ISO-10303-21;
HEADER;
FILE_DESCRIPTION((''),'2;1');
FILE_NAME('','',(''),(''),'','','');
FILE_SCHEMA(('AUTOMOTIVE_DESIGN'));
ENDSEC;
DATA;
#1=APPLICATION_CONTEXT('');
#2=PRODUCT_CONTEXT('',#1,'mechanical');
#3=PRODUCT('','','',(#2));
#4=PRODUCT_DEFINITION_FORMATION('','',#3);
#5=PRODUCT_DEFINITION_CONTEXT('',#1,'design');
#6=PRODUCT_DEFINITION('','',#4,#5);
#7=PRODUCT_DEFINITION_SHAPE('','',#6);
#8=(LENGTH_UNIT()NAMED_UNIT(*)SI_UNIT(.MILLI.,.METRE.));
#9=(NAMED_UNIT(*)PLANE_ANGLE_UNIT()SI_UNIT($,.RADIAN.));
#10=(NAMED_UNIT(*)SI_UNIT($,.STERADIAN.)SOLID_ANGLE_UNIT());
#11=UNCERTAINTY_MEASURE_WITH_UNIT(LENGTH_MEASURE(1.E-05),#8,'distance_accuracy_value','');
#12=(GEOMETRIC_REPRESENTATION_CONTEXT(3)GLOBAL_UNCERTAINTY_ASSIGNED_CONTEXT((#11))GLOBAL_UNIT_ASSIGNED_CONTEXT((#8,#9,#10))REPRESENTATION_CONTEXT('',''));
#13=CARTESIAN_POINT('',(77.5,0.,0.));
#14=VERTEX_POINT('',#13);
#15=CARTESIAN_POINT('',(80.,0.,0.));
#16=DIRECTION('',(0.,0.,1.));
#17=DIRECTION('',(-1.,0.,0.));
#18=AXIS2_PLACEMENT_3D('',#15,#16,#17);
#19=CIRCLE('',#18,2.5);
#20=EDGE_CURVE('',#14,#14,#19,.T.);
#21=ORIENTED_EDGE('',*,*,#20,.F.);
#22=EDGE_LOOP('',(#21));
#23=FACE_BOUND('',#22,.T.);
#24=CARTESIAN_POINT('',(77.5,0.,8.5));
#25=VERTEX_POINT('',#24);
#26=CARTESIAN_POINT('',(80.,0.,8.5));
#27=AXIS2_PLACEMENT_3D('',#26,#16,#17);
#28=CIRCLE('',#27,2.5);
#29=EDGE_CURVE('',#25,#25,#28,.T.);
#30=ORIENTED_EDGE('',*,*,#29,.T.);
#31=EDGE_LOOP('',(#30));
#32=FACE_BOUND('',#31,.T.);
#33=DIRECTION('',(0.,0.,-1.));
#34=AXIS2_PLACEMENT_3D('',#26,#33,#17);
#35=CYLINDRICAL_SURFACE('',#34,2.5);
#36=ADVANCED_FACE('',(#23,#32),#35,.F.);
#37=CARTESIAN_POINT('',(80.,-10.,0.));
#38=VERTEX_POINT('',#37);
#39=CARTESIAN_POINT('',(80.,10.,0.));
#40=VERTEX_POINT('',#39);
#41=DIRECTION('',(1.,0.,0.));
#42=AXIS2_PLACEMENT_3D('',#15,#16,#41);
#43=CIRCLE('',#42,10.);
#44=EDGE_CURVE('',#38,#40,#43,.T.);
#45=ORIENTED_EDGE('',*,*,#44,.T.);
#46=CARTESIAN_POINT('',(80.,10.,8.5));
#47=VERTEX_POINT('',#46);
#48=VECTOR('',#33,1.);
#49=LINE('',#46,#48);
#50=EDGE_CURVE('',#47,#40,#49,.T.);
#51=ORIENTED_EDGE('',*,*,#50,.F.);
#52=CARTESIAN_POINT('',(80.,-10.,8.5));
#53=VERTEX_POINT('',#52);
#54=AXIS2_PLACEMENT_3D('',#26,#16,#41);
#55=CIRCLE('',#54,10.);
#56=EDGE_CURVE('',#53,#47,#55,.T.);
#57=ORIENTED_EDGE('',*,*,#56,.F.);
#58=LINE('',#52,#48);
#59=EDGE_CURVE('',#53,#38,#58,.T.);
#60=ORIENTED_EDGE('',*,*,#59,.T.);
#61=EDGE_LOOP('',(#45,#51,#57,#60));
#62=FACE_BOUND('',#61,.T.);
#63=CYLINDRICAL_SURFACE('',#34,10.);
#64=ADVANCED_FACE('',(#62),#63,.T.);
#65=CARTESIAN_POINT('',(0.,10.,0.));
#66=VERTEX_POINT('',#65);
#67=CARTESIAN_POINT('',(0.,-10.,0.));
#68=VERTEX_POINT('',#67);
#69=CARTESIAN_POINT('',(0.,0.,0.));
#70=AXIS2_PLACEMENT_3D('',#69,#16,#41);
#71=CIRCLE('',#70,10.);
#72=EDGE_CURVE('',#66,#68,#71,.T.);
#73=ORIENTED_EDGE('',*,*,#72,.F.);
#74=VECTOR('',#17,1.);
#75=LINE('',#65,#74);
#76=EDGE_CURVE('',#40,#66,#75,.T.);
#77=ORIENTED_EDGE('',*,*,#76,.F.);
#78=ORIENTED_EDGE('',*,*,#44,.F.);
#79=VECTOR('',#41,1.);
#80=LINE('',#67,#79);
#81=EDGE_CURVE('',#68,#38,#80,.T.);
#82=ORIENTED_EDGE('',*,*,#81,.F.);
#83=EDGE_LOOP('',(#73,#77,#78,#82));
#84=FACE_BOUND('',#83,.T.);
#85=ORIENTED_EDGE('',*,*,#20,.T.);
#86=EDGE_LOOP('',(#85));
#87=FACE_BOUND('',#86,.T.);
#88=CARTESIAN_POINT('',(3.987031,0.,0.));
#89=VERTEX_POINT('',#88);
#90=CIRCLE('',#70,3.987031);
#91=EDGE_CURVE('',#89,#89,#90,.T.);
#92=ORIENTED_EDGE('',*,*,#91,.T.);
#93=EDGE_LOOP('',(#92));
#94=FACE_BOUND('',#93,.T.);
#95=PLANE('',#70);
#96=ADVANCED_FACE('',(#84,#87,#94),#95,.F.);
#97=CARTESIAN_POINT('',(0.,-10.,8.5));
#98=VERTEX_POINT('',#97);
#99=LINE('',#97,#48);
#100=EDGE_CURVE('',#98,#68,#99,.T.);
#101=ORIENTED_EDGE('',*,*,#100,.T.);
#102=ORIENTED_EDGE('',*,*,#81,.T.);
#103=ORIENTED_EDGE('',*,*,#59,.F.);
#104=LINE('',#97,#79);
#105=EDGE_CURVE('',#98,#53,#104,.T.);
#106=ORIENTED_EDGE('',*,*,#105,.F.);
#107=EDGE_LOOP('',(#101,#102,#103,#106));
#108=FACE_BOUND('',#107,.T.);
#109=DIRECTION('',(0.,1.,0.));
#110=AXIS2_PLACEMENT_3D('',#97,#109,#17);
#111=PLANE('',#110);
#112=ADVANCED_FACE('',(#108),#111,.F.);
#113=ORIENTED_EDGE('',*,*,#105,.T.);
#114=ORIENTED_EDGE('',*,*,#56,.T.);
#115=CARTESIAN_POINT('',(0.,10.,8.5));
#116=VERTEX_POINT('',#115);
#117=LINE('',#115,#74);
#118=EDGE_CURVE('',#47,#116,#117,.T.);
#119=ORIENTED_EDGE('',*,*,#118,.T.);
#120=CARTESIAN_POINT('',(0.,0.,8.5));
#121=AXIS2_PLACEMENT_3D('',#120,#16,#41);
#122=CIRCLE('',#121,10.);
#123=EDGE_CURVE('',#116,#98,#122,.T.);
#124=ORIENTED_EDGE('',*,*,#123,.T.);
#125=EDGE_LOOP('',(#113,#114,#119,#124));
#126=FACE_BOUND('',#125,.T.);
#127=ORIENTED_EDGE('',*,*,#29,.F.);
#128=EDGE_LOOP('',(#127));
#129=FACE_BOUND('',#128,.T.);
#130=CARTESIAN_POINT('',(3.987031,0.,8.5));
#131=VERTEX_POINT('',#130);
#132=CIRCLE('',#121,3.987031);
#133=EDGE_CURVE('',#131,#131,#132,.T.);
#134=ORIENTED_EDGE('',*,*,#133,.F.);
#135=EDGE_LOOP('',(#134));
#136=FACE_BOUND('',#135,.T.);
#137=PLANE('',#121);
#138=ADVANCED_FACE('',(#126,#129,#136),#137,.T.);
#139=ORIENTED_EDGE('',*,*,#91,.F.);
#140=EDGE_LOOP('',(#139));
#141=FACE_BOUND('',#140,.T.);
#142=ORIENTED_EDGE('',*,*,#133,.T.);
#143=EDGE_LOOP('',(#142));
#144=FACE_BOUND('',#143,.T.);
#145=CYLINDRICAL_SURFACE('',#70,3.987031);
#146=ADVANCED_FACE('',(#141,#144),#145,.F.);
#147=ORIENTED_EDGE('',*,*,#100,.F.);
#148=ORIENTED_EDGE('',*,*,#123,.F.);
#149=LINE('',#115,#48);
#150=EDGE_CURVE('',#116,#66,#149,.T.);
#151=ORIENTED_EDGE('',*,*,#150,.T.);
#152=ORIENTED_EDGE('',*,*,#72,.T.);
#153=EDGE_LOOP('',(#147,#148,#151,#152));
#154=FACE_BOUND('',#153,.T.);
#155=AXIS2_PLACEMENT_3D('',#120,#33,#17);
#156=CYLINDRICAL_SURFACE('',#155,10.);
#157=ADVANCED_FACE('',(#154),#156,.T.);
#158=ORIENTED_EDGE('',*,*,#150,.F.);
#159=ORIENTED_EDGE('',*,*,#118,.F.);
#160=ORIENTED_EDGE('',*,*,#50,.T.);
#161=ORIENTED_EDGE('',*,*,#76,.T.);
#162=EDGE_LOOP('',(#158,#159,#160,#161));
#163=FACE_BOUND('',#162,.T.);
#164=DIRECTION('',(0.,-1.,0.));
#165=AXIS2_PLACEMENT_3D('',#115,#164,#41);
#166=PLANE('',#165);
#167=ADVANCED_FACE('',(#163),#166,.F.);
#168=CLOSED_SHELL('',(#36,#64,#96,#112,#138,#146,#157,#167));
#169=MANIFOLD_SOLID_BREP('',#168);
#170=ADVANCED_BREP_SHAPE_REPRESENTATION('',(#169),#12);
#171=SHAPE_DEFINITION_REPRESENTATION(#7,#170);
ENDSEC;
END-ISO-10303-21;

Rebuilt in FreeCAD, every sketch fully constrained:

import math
import FreeCAD as App
import Part
import Sketcher
from FreeCAD import Vector

doc = App.newDocument("Part")
body = doc.addObject("PartDesign::Body", "Body")

sketch1 = doc.addObject("Sketcher::SketchObject", "Sketch")
body.addObject(sketch1)
sketch1.AttachmentSupport = (doc.XY_Plane, [""])
sketch1.MapMode = "FlatFace"
sketch1.addGeometry([
    Part.LineSegment(Vector(80, 10, 0), Vector(0, 10, 0)),
    Part.ArcOfCircle(Part.Circle(Vector(0, 0, 0), Vector(0, 0, 1), 10), math.radians(90), math.radians(270)),
    Part.LineSegment(Vector(0, -10, 0), Vector(80, -10, 0)),
    Part.ArcOfCircle(Part.Circle(Vector(80, 0, 0), Vector(0, 0, 1), 10), math.radians(-90), math.radians(90)),
    Part.Circle(Vector(80, 0, 0), Vector(0, 0, 1), 2.5),
    Part.Circle(Vector(0, 0, 0), Vector(0, 0, 1), 2.5),
], False)
sketch1.addConstraint([
    Sketcher.Constraint("Tangent", 0, 2, 1, 1),
    Sketcher.Constraint("Tangent", 1, 2, 2, 1),
    Sketcher.Constraint("Tangent", 2, 2, 3, 1),
    Sketcher.Constraint("Tangent", 3, 2, 0, 1),
    Sketcher.Constraint("Horizontal", 0),
    Sketcher.Constraint("Horizontal", 2),
    Sketcher.Constraint("Coincident", 1, 3, -1, 1),
    Sketcher.Constraint("Coincident", 5, 3, -1, 1),
    Sketcher.Constraint("Coincident", 4, 3, 3, 3),
    Sketcher.Constraint("Equal", 4, 5),
    Sketcher.Constraint("Diameter", 4, 5.0),
    Sketcher.Constraint("Radius", 1, 10.0),
    Sketcher.Constraint("DistanceX", 0, 2, 0, 1, 80.0),
])
pad1 = doc.addObject("PartDesign::Pad", "Pad")
body.addObject(pad1)
pad1.Profile = sketch1
pad1.Length = 8.5

sketch2 = doc.addObject("Sketcher::SketchObject", "Sketch001")
body.addObject(sketch2)
sketch2.AttachmentSupport = (doc.XY_Plane, [""])
sketch2.MapMode = "FlatFace"
sketch2.AttachmentOffset = App.Placement(Vector(0, 0, 8.5), App.Rotation())
sketch2.addGeometry(Part.Circle(Vector(0, 0, 0), Vector(0, 0, 1), 3.987031), False)
sketch2.addConstraint([
    Sketcher.Constraint("Coincident", 0, 3, -1, 1),
    Sketcher.Constraint("Diameter", 0, 7.974062),
])
pocket1 = doc.addObject("PartDesign::Pocket", "Pocket")
body.addObject(pocket1)
pocket1.Profile = sketch2
pocket1.Type = "ThroughAll"
pocket1.Midplane = True

doc.recompute()
